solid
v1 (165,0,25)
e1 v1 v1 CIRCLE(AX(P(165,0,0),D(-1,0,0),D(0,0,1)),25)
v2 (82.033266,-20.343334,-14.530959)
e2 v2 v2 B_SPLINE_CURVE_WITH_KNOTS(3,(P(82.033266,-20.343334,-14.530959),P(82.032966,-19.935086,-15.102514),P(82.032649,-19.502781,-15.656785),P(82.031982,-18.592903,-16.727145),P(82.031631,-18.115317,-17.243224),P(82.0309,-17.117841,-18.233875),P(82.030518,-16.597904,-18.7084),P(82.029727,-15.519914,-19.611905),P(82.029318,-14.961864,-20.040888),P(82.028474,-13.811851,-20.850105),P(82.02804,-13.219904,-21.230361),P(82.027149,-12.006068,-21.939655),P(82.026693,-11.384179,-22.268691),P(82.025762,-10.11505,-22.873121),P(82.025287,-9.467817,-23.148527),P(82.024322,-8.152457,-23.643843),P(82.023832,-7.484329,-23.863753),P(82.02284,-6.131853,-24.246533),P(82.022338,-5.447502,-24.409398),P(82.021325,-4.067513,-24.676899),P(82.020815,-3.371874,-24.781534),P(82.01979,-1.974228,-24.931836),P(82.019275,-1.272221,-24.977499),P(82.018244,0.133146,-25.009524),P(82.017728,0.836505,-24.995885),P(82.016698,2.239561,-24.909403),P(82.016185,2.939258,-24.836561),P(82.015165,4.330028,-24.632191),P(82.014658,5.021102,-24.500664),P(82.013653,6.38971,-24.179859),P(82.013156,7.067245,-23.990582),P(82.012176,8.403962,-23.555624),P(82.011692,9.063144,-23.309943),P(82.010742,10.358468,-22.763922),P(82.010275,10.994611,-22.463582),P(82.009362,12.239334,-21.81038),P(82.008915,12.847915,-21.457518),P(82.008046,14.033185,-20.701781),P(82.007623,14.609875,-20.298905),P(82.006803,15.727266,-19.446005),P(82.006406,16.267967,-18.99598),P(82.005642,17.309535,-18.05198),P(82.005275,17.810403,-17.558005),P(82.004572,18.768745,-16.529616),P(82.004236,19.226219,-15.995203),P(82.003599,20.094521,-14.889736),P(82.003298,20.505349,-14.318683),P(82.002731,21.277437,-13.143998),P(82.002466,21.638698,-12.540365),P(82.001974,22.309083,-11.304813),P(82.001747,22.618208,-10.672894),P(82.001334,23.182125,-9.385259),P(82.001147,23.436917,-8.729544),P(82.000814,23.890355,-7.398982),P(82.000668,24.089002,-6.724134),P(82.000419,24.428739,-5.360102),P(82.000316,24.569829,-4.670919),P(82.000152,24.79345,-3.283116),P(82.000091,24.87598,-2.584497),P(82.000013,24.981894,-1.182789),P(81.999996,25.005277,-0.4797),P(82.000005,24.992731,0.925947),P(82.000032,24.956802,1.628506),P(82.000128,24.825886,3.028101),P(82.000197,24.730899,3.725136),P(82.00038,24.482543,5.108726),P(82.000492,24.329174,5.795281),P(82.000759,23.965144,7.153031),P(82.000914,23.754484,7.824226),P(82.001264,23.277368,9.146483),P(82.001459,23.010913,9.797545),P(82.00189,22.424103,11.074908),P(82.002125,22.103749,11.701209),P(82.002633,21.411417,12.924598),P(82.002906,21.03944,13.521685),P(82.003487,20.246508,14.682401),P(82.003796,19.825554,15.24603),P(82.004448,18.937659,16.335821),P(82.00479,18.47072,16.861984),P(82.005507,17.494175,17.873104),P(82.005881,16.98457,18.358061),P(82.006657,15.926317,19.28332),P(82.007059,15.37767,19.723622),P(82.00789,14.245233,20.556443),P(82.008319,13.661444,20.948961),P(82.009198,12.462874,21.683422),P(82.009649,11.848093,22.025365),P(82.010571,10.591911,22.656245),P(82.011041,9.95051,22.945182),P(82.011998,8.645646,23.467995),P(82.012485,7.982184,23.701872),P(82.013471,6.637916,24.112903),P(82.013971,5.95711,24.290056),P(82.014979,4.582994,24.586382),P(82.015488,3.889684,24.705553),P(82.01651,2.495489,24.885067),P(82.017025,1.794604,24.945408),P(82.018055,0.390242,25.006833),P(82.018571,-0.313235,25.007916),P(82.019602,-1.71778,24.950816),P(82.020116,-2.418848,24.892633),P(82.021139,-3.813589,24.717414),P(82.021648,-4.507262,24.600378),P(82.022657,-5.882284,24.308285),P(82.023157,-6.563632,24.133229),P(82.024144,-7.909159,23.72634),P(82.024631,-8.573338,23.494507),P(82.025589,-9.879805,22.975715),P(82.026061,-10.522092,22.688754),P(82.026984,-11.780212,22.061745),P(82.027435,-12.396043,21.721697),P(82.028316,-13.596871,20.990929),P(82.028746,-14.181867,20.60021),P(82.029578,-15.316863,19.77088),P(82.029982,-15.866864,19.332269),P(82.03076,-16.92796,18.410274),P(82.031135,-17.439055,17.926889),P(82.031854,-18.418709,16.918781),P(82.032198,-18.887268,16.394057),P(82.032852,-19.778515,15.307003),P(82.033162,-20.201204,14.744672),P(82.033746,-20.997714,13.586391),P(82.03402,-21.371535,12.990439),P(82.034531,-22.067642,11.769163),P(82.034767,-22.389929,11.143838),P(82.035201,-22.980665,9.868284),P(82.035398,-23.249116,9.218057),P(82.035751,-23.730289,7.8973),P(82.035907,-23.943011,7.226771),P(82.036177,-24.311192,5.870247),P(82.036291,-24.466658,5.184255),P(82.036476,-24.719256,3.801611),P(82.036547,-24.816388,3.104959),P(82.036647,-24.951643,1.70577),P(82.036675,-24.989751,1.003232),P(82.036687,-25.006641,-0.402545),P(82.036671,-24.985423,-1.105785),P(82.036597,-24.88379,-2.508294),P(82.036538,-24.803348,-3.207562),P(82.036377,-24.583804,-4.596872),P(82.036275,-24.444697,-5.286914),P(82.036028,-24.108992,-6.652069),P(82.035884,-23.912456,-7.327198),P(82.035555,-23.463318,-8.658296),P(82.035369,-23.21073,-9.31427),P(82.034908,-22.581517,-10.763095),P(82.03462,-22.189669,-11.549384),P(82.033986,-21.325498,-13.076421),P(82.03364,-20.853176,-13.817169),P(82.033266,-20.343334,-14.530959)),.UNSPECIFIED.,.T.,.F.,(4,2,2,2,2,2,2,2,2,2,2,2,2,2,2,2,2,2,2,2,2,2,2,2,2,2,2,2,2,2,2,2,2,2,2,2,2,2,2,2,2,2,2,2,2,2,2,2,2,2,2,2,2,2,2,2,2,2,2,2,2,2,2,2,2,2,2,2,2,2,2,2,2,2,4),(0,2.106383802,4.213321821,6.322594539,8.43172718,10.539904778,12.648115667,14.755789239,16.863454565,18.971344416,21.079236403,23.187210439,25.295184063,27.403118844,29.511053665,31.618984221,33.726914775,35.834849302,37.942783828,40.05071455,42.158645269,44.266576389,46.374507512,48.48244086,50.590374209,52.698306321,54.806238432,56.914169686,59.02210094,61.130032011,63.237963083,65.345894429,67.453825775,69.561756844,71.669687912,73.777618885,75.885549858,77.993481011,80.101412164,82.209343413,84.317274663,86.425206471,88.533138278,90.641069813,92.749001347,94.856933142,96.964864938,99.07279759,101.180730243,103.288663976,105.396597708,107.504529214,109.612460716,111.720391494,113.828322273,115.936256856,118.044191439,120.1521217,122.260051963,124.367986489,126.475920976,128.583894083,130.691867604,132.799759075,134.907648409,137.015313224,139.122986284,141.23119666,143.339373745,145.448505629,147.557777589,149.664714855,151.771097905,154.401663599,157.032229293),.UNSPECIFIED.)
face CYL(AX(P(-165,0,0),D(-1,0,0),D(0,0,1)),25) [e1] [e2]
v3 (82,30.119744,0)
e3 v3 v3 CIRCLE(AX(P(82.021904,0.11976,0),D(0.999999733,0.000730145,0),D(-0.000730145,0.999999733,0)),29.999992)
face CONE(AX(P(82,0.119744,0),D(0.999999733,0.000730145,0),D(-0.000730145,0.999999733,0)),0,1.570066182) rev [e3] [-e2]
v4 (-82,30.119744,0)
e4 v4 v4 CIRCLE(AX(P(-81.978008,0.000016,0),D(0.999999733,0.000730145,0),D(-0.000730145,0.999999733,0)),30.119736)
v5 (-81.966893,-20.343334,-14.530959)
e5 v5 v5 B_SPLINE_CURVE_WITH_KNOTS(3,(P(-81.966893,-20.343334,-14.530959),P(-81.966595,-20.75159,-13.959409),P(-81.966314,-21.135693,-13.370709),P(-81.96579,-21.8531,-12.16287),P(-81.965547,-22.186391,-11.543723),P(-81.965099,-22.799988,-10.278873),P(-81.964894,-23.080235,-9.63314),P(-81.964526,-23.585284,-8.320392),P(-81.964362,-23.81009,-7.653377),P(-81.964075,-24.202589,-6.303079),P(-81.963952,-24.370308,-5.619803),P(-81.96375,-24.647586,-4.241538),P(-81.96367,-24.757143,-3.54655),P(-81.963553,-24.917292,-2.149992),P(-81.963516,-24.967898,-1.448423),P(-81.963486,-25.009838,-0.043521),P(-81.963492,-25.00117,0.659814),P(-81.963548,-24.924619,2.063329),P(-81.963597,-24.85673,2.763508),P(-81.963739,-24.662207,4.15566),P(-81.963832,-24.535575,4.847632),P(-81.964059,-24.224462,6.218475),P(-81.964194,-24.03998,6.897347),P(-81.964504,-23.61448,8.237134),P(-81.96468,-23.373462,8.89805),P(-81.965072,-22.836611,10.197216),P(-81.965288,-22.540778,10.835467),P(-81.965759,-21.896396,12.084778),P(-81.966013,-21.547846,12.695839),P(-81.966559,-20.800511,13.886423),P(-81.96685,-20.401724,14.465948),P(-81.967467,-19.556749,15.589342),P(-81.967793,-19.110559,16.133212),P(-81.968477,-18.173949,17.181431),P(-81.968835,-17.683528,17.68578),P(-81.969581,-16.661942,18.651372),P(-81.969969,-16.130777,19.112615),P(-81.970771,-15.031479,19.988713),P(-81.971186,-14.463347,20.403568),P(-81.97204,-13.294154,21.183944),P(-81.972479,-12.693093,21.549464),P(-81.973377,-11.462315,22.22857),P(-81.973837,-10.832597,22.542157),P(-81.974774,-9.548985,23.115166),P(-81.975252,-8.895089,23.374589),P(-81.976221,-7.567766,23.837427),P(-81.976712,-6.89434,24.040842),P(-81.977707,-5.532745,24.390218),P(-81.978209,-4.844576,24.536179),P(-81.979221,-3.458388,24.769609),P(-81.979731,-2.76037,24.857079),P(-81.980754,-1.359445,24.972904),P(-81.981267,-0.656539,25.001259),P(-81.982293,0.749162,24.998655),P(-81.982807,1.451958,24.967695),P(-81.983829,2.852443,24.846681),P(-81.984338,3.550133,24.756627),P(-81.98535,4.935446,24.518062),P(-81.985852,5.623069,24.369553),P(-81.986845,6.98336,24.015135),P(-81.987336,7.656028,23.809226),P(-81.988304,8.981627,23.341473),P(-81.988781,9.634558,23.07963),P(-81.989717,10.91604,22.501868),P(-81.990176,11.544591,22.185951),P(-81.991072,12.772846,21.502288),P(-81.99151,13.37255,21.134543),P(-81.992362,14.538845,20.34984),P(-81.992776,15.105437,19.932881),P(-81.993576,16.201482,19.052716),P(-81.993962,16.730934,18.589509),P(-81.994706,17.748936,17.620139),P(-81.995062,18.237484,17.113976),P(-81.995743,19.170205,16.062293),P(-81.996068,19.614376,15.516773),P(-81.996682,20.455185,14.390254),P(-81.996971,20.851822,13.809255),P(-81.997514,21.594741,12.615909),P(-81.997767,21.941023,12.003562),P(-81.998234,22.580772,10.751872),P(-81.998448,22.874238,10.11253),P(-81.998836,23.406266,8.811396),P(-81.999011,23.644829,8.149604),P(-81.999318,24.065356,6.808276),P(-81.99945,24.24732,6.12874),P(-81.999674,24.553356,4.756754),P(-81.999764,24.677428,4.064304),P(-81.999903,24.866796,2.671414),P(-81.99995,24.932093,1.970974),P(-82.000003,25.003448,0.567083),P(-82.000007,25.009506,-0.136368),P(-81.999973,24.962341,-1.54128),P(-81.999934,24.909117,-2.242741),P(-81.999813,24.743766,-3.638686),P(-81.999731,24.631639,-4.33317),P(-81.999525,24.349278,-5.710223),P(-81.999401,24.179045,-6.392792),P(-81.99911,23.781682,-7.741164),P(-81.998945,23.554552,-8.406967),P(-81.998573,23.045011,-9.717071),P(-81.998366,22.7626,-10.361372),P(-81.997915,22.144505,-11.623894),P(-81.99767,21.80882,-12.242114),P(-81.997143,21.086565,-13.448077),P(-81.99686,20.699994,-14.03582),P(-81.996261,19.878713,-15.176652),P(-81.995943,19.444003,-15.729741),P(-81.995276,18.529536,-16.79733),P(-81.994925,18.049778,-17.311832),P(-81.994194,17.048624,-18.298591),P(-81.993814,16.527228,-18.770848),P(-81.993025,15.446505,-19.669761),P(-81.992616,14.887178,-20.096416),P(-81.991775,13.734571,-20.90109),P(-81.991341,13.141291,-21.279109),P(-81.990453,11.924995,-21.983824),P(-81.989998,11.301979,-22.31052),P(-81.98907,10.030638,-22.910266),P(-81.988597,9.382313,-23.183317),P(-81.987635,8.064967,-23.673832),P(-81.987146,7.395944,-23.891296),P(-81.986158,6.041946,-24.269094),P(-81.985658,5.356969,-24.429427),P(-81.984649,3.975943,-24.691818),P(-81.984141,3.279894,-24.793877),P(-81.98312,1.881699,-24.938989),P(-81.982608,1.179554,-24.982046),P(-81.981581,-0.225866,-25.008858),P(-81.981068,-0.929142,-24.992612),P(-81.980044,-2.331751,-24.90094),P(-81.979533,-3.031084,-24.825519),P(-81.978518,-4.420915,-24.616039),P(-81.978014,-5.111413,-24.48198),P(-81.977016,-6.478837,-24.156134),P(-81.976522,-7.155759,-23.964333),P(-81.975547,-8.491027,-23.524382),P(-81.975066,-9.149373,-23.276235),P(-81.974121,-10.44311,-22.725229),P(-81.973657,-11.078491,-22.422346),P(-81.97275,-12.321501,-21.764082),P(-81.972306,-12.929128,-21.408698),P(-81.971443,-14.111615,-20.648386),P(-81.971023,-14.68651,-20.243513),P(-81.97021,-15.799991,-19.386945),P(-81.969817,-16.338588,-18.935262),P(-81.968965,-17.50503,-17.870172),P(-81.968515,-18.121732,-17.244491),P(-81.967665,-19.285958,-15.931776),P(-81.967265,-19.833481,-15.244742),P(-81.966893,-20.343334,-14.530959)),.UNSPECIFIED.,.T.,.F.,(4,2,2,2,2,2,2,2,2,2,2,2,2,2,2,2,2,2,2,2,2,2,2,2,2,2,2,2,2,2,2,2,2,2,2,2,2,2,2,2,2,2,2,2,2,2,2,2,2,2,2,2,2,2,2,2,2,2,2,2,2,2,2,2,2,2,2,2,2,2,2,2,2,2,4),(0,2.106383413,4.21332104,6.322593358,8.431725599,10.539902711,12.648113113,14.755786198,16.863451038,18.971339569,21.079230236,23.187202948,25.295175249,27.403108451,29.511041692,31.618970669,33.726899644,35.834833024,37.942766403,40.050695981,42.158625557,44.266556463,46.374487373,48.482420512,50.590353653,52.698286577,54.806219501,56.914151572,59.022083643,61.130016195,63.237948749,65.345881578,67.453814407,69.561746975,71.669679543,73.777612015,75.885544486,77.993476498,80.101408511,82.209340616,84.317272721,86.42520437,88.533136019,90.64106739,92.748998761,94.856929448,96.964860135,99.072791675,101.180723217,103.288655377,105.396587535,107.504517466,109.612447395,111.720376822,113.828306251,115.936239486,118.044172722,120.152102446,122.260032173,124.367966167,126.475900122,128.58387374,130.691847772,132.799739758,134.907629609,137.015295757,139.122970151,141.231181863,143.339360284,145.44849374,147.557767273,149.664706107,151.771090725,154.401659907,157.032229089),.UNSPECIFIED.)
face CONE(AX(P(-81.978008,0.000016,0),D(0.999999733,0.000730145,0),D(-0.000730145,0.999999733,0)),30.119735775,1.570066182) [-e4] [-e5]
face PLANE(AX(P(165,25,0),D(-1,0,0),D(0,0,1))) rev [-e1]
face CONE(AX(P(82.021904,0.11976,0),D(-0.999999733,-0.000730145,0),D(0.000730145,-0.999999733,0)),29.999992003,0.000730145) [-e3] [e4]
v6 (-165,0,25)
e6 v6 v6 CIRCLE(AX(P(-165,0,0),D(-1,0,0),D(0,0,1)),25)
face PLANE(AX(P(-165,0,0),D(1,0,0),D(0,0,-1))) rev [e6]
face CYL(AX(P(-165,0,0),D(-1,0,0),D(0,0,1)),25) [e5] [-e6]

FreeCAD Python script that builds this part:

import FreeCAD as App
import Part
import Sketcher
from FreeCAD import Vector
Q = App.Units.Quantity

doc = App.newDocument("Part")
body = doc.addObject("PartDesign::Body", "Body")

sketch1 = body.newObject("Sketcher::SketchObject", "Sketch")
sketch1.AttachmentSupport = (doc.getObject("XY_Plane"), [""])
sketch1.MapMode = "FlatFace"
sketch1.addGeometry([
    Part.LineSegment(Vector(-165, 25, 0), Vector(-165, 0, 0)),
    Part.LineSegment(Vector(-165, 0, 0), Vector(165, 0, 0)),
    Part.LineSegment(Vector(165, 0, 0), Vector(165, 25, 0)),
    Part.LineSegment(Vector(165, 25, 0), Vector(-165, 25, 0)),
], False)
sketch1.addConstraint([
    Sketcher.Constraint("Coincident", 0, 2, 1, 1),
    Sketcher.Constraint("Coincident", 1, 2, 2, 1),
    Sketcher.Constraint("Coincident", 2, 2, 3, 1),
    Sketcher.Constraint("Coincident", 3, 2, 0, 1),
    Sketcher.Constraint("Vertical", 0),
    Sketcher.Constraint("Horizontal", 1),
    Sketcher.Constraint("Vertical", 2),
    Sketcher.Constraint("Horizontal", 3),
    Sketcher.Constraint("Symmetric", 0, 2, 1, 2, -1, 1),
    Sketcher.Constraint("DistanceX", 1, 1, 1, 2, Q("330 mm")),
    Sketcher.Constraint("DistanceY", 0, 2, 0, 1, Q("25 mm")),
])
revolution = body.newObject("PartDesign::Revolution", "Revolution")
revolution.Profile = sketch1
revolution.ReferenceAxis = (sketch1, ["H_Axis"])
revolution.Angle = 360

sketch2 = body.newObject("Sketcher::SketchObject", "Sketch001")
sketch2.AttachmentSupport = (doc.getObject("XY_Plane"), [""])
sketch2.MapMode = "FlatFace"
sketch2.addGeometry([
    Part.LineSegment(Vector(-82, 30.119744, 0), Vector(-82, 0, 0)),
    Part.LineSegment(Vector(-82, 0, 0), Vector(82, 0.119744, 0)),
    Part.LineSegment(Vector(82, 0.119744, 0), Vector(82, 30.119744, 0)),
    Part.LineSegment(Vector(82, 30.119744, 0), Vector(-82, 30.119744, 0)),
], False)
sketch2.addGeometry(Part.LineSegment(Vector(82.021904, 0.11976, 0), Vector(-82, 0, 0)), True)
sketch2.addConstraint([
    Sketcher.Constraint("Coincident", 0, 2, 1, 1),
    Sketcher.Constraint("Coincident", 1, 2, 2, 1),
    Sketcher.Constraint("Coincident", 2, 2, 3, 1),
    Sketcher.Constraint("Coincident", 3, 2, 0, 1),
    Sketcher.Constraint("Vertical", 0),
    Sketcher.Constraint("Vertical", 2),
    Sketcher.Constraint("Horizontal", 3),
    Sketcher.Constraint("Coincident", 4, 2, 0, 2),
    Sketcher.Constraint("PointOnObject", 0, 2, -1),
    Sketcher.Constraint("Parallel", 1, 4),
    Sketcher.Constraint("DistanceX", 3, 2, 3, 1, Q("164 mm")),
    Sketcher.Constraint("DistanceY", 2, 1, 2, 2, Q("30 mm")),
    Sketcher.Constraint("DistanceX", 0, 2, -1, 1, Q("82 mm")),
    Sketcher.Constraint("DistanceY", 0, 2, 0, 1, Q("30.119744 mm")),
    Sketcher.Constraint("Distance", 4, Q("164.021948 mm")),
])
revolution2 = body.newObject("PartDesign::Revolution", "Revolution001")
revolution2.Profile = sketch2
revolution2.ReferenceAxis = (sketch2, ["Axis0"])
revolution2.Angle = 360

doc.recompute()
